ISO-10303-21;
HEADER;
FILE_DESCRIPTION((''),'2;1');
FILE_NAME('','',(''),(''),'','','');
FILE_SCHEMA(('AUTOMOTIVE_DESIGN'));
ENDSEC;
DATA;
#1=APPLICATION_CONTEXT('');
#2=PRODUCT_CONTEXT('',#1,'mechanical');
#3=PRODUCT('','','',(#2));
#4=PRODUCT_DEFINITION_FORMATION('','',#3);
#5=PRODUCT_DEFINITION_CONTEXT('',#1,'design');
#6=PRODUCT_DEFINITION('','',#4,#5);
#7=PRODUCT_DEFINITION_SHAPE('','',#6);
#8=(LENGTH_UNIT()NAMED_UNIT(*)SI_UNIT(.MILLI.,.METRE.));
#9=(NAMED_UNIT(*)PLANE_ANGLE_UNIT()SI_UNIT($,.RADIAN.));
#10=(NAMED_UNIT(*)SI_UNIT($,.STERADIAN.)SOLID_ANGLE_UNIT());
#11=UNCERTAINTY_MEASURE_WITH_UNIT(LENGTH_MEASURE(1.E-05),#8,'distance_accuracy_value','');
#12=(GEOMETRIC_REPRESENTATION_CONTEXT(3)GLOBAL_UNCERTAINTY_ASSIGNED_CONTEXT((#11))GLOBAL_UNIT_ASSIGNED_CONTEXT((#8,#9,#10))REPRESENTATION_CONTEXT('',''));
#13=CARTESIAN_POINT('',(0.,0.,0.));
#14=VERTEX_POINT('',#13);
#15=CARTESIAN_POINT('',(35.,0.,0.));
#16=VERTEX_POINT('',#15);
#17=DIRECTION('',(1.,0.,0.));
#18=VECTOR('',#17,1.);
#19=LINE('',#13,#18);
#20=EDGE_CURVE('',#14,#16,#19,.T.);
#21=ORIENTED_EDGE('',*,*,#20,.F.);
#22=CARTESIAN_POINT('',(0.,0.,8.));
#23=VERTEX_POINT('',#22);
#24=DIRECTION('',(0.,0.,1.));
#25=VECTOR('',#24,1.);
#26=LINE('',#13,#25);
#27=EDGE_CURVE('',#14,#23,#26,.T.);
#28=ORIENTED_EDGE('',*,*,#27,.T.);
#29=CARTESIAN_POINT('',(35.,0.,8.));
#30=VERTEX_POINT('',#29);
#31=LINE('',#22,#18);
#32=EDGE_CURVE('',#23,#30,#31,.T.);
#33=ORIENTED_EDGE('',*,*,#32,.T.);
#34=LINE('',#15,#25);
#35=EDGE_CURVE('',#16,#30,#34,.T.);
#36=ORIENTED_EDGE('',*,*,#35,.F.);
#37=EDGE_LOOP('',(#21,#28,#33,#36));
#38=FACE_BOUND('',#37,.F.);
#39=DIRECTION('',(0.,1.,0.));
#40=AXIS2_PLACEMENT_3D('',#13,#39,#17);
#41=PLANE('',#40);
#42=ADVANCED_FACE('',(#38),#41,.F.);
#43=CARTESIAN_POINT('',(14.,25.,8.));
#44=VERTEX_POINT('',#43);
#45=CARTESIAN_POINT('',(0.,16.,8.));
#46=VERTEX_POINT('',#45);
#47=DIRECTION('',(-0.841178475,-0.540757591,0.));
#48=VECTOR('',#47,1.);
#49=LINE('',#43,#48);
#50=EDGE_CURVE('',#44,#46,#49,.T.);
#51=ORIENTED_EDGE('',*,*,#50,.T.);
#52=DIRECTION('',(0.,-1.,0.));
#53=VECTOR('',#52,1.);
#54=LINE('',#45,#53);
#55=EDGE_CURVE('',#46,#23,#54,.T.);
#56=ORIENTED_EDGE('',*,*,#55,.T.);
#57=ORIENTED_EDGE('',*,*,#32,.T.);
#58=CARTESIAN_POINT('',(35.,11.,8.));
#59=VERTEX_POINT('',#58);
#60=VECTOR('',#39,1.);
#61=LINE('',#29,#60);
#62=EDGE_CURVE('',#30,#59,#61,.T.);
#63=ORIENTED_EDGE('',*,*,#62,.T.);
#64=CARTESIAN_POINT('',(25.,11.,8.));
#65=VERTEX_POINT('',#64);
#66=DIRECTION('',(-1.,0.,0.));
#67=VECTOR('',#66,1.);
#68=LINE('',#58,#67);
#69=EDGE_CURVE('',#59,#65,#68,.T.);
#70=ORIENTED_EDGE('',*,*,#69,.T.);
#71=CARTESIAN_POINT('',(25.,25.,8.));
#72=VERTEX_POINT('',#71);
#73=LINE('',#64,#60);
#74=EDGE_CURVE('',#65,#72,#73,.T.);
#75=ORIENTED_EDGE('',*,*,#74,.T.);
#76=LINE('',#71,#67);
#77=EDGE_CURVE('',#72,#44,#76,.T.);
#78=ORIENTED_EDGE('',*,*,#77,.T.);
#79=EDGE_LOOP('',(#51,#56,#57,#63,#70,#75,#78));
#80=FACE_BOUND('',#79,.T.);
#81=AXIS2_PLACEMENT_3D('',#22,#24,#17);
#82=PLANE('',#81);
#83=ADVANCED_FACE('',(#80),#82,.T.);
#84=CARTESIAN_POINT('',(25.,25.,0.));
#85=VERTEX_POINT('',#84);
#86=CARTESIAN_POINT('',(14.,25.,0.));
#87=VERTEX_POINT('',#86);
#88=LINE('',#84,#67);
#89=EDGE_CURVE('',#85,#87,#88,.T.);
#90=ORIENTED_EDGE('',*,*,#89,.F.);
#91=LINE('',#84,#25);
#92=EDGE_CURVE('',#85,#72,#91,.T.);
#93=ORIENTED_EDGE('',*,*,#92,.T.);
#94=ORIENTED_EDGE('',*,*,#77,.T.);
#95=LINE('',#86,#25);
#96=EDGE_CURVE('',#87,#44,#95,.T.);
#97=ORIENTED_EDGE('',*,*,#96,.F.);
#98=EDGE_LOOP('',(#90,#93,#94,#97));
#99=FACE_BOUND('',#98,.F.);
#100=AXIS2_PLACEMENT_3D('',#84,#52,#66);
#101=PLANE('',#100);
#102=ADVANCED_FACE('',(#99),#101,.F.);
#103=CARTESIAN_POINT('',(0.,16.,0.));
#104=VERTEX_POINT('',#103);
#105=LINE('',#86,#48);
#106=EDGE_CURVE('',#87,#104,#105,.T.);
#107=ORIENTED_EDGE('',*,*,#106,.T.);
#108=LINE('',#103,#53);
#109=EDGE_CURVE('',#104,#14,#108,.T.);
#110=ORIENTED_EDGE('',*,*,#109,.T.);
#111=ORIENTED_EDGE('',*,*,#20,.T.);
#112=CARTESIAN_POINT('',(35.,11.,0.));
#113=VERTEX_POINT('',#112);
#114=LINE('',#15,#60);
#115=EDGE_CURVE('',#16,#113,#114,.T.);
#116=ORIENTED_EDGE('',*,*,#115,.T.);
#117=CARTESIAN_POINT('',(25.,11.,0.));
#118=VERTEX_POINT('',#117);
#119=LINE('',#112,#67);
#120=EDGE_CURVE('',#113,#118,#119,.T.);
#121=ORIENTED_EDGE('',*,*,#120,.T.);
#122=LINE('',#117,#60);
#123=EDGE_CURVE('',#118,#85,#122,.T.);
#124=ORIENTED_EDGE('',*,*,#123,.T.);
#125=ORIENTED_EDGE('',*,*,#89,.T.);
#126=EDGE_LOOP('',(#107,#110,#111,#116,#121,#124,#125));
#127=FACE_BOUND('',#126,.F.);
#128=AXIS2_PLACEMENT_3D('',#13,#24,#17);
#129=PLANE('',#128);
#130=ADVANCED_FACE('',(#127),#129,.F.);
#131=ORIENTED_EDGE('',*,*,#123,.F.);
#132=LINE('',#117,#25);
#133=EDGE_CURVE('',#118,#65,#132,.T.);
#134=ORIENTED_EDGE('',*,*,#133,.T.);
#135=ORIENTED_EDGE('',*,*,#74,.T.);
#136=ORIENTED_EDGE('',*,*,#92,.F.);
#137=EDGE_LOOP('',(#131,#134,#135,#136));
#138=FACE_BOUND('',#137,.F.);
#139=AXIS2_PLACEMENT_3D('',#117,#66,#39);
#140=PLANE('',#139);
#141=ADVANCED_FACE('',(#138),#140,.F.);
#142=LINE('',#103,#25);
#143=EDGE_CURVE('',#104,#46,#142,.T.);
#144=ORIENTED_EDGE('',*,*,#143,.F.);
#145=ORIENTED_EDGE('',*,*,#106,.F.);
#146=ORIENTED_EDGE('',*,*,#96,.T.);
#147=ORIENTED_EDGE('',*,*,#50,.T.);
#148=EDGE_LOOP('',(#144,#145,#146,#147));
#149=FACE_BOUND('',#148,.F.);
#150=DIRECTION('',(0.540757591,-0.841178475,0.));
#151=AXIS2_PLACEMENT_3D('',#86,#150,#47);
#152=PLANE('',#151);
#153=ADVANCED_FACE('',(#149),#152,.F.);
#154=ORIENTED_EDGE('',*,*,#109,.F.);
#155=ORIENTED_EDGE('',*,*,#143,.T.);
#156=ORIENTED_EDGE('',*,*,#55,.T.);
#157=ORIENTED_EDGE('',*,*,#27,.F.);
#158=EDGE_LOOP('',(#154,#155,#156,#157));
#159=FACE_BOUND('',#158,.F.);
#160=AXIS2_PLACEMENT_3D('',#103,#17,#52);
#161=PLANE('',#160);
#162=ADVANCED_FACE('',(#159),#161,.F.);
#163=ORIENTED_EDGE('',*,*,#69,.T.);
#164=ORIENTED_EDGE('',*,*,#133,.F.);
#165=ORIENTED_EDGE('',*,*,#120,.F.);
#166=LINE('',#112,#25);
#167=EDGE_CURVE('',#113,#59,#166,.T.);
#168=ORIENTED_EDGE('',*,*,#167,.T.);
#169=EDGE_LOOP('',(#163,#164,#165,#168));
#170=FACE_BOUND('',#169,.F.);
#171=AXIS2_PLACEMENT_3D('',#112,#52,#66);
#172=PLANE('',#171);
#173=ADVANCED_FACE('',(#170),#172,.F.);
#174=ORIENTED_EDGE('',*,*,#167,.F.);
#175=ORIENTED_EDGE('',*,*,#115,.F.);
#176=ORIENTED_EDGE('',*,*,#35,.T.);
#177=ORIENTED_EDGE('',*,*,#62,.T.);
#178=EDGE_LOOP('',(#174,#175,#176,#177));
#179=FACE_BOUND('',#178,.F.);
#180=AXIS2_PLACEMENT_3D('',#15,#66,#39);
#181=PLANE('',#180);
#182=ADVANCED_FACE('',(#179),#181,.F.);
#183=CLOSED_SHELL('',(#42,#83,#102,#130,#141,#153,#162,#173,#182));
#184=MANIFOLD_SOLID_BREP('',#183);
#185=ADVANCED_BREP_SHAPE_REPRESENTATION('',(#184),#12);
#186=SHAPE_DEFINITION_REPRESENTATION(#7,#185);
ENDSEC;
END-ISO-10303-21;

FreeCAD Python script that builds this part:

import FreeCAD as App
import Part
import Sketcher

doc = App.newDocument("Part")
body = doc.addObject("PartDesign::Body", "Body")

# Sketch on XY plane
sketch1 = doc.addObject("Sketcher::SketchObject", "Sketch")
body.addObject(sketch1)
sketch1.AttachmentSupport = (doc.XY_Plane, [""])
sketch1.MapMode = "FlatFace"
sketch1.addGeometry(Part.LineSegment(App.Vector(0, 16, 0), App.Vector(0, 0, 0)), False)
sketch1.addGeometry(Part.LineSegment(App.Vector(0, 0, 0), App.Vector(35, 0, 0)), False)
sketch1.addGeometry(Part.LineSegment(App.Vector(35, 0, 0), App.Vector(35, 11, 0)), False)
sketch1.addGeometry(Part.LineSegment(App.Vector(35, 11, 0), App.Vector(25, 11, 0)), False)
sketch1.addGeometry(Part.LineSegment(App.Vector(25, 11, 0), App.Vector(25, 25, 0)), False)
sketch1.addGeometry(Part.LineSegment(App.Vector(25, 25, 0), App.Vector(14, 25, 0)), False)
sketch1.addGeometry(Part.LineSegment(App.Vector(14, 25, 0), App.Vector(0, 16, 0)), False)
sketch1.addConstraint(Sketcher.Constraint("Coincident", 0, 2, 1, 1))
sketch1.addConstraint(Sketcher.Constraint("Coincident", 1, 2, 2, 1))
sketch1.addConstraint(Sketcher.Constraint("Coincident", 2, 2, 3, 1))
sketch1.addConstraint(Sketcher.Constraint("Coincident", 3, 2, 4, 1))
sketch1.addConstraint(Sketcher.Constraint("Coincident", 4, 2, 5, 1))
sketch1.addConstraint(Sketcher.Constraint("Coincident", 5, 2, 6, 1))
sketch1.addConstraint(Sketcher.Constraint("Coincident", 6, 2, 0, 1))
sketch1.addConstraint(Sketcher.Constraint("Vertical", 0))
sketch1.addConstraint(Sketcher.Constraint("Horizontal", 1))
sketch1.addConstraint(Sketcher.Constraint("Vertical", 2))
sketch1.addConstraint(Sketcher.Constraint("Horizontal", 3))
sketch1.addConstraint(Sketcher.Constraint("Vertical", 4))
sketch1.addConstraint(Sketcher.Constraint("Horizontal", 5))
sketch1.addConstraint(Sketcher.Constraint("Coincident", 0, 2, -1, 1))
sketch1.addConstraint(Sketcher.Constraint("Equal", 5, 2))
sketch1.addConstraint(Sketcher.Constraint("DistanceX", 1, 1, 1, 2, 35.0))
sketch1.addConstraint(Sketcher.Constraint("DistanceX", 3, 2, 3, 1, 10.0))
sketch1.addConstraint(Sketcher.Constraint("DistanceX", 5, 2, 5, 1, 11.0))
sketch1.addConstraint(Sketcher.Constraint("DistanceY", 4, 1, 4, 2, 14.0))
sketch1.addConstraint(Sketcher.Constraint("DistanceY", 6, 2, 5, 2, 9.0))
pad1 = doc.addObject("PartDesign::Pad", "Pad")
body.addObject(pad1)
pad1.Profile = sketch1
pad1.Length = 8

doc.recompute()
